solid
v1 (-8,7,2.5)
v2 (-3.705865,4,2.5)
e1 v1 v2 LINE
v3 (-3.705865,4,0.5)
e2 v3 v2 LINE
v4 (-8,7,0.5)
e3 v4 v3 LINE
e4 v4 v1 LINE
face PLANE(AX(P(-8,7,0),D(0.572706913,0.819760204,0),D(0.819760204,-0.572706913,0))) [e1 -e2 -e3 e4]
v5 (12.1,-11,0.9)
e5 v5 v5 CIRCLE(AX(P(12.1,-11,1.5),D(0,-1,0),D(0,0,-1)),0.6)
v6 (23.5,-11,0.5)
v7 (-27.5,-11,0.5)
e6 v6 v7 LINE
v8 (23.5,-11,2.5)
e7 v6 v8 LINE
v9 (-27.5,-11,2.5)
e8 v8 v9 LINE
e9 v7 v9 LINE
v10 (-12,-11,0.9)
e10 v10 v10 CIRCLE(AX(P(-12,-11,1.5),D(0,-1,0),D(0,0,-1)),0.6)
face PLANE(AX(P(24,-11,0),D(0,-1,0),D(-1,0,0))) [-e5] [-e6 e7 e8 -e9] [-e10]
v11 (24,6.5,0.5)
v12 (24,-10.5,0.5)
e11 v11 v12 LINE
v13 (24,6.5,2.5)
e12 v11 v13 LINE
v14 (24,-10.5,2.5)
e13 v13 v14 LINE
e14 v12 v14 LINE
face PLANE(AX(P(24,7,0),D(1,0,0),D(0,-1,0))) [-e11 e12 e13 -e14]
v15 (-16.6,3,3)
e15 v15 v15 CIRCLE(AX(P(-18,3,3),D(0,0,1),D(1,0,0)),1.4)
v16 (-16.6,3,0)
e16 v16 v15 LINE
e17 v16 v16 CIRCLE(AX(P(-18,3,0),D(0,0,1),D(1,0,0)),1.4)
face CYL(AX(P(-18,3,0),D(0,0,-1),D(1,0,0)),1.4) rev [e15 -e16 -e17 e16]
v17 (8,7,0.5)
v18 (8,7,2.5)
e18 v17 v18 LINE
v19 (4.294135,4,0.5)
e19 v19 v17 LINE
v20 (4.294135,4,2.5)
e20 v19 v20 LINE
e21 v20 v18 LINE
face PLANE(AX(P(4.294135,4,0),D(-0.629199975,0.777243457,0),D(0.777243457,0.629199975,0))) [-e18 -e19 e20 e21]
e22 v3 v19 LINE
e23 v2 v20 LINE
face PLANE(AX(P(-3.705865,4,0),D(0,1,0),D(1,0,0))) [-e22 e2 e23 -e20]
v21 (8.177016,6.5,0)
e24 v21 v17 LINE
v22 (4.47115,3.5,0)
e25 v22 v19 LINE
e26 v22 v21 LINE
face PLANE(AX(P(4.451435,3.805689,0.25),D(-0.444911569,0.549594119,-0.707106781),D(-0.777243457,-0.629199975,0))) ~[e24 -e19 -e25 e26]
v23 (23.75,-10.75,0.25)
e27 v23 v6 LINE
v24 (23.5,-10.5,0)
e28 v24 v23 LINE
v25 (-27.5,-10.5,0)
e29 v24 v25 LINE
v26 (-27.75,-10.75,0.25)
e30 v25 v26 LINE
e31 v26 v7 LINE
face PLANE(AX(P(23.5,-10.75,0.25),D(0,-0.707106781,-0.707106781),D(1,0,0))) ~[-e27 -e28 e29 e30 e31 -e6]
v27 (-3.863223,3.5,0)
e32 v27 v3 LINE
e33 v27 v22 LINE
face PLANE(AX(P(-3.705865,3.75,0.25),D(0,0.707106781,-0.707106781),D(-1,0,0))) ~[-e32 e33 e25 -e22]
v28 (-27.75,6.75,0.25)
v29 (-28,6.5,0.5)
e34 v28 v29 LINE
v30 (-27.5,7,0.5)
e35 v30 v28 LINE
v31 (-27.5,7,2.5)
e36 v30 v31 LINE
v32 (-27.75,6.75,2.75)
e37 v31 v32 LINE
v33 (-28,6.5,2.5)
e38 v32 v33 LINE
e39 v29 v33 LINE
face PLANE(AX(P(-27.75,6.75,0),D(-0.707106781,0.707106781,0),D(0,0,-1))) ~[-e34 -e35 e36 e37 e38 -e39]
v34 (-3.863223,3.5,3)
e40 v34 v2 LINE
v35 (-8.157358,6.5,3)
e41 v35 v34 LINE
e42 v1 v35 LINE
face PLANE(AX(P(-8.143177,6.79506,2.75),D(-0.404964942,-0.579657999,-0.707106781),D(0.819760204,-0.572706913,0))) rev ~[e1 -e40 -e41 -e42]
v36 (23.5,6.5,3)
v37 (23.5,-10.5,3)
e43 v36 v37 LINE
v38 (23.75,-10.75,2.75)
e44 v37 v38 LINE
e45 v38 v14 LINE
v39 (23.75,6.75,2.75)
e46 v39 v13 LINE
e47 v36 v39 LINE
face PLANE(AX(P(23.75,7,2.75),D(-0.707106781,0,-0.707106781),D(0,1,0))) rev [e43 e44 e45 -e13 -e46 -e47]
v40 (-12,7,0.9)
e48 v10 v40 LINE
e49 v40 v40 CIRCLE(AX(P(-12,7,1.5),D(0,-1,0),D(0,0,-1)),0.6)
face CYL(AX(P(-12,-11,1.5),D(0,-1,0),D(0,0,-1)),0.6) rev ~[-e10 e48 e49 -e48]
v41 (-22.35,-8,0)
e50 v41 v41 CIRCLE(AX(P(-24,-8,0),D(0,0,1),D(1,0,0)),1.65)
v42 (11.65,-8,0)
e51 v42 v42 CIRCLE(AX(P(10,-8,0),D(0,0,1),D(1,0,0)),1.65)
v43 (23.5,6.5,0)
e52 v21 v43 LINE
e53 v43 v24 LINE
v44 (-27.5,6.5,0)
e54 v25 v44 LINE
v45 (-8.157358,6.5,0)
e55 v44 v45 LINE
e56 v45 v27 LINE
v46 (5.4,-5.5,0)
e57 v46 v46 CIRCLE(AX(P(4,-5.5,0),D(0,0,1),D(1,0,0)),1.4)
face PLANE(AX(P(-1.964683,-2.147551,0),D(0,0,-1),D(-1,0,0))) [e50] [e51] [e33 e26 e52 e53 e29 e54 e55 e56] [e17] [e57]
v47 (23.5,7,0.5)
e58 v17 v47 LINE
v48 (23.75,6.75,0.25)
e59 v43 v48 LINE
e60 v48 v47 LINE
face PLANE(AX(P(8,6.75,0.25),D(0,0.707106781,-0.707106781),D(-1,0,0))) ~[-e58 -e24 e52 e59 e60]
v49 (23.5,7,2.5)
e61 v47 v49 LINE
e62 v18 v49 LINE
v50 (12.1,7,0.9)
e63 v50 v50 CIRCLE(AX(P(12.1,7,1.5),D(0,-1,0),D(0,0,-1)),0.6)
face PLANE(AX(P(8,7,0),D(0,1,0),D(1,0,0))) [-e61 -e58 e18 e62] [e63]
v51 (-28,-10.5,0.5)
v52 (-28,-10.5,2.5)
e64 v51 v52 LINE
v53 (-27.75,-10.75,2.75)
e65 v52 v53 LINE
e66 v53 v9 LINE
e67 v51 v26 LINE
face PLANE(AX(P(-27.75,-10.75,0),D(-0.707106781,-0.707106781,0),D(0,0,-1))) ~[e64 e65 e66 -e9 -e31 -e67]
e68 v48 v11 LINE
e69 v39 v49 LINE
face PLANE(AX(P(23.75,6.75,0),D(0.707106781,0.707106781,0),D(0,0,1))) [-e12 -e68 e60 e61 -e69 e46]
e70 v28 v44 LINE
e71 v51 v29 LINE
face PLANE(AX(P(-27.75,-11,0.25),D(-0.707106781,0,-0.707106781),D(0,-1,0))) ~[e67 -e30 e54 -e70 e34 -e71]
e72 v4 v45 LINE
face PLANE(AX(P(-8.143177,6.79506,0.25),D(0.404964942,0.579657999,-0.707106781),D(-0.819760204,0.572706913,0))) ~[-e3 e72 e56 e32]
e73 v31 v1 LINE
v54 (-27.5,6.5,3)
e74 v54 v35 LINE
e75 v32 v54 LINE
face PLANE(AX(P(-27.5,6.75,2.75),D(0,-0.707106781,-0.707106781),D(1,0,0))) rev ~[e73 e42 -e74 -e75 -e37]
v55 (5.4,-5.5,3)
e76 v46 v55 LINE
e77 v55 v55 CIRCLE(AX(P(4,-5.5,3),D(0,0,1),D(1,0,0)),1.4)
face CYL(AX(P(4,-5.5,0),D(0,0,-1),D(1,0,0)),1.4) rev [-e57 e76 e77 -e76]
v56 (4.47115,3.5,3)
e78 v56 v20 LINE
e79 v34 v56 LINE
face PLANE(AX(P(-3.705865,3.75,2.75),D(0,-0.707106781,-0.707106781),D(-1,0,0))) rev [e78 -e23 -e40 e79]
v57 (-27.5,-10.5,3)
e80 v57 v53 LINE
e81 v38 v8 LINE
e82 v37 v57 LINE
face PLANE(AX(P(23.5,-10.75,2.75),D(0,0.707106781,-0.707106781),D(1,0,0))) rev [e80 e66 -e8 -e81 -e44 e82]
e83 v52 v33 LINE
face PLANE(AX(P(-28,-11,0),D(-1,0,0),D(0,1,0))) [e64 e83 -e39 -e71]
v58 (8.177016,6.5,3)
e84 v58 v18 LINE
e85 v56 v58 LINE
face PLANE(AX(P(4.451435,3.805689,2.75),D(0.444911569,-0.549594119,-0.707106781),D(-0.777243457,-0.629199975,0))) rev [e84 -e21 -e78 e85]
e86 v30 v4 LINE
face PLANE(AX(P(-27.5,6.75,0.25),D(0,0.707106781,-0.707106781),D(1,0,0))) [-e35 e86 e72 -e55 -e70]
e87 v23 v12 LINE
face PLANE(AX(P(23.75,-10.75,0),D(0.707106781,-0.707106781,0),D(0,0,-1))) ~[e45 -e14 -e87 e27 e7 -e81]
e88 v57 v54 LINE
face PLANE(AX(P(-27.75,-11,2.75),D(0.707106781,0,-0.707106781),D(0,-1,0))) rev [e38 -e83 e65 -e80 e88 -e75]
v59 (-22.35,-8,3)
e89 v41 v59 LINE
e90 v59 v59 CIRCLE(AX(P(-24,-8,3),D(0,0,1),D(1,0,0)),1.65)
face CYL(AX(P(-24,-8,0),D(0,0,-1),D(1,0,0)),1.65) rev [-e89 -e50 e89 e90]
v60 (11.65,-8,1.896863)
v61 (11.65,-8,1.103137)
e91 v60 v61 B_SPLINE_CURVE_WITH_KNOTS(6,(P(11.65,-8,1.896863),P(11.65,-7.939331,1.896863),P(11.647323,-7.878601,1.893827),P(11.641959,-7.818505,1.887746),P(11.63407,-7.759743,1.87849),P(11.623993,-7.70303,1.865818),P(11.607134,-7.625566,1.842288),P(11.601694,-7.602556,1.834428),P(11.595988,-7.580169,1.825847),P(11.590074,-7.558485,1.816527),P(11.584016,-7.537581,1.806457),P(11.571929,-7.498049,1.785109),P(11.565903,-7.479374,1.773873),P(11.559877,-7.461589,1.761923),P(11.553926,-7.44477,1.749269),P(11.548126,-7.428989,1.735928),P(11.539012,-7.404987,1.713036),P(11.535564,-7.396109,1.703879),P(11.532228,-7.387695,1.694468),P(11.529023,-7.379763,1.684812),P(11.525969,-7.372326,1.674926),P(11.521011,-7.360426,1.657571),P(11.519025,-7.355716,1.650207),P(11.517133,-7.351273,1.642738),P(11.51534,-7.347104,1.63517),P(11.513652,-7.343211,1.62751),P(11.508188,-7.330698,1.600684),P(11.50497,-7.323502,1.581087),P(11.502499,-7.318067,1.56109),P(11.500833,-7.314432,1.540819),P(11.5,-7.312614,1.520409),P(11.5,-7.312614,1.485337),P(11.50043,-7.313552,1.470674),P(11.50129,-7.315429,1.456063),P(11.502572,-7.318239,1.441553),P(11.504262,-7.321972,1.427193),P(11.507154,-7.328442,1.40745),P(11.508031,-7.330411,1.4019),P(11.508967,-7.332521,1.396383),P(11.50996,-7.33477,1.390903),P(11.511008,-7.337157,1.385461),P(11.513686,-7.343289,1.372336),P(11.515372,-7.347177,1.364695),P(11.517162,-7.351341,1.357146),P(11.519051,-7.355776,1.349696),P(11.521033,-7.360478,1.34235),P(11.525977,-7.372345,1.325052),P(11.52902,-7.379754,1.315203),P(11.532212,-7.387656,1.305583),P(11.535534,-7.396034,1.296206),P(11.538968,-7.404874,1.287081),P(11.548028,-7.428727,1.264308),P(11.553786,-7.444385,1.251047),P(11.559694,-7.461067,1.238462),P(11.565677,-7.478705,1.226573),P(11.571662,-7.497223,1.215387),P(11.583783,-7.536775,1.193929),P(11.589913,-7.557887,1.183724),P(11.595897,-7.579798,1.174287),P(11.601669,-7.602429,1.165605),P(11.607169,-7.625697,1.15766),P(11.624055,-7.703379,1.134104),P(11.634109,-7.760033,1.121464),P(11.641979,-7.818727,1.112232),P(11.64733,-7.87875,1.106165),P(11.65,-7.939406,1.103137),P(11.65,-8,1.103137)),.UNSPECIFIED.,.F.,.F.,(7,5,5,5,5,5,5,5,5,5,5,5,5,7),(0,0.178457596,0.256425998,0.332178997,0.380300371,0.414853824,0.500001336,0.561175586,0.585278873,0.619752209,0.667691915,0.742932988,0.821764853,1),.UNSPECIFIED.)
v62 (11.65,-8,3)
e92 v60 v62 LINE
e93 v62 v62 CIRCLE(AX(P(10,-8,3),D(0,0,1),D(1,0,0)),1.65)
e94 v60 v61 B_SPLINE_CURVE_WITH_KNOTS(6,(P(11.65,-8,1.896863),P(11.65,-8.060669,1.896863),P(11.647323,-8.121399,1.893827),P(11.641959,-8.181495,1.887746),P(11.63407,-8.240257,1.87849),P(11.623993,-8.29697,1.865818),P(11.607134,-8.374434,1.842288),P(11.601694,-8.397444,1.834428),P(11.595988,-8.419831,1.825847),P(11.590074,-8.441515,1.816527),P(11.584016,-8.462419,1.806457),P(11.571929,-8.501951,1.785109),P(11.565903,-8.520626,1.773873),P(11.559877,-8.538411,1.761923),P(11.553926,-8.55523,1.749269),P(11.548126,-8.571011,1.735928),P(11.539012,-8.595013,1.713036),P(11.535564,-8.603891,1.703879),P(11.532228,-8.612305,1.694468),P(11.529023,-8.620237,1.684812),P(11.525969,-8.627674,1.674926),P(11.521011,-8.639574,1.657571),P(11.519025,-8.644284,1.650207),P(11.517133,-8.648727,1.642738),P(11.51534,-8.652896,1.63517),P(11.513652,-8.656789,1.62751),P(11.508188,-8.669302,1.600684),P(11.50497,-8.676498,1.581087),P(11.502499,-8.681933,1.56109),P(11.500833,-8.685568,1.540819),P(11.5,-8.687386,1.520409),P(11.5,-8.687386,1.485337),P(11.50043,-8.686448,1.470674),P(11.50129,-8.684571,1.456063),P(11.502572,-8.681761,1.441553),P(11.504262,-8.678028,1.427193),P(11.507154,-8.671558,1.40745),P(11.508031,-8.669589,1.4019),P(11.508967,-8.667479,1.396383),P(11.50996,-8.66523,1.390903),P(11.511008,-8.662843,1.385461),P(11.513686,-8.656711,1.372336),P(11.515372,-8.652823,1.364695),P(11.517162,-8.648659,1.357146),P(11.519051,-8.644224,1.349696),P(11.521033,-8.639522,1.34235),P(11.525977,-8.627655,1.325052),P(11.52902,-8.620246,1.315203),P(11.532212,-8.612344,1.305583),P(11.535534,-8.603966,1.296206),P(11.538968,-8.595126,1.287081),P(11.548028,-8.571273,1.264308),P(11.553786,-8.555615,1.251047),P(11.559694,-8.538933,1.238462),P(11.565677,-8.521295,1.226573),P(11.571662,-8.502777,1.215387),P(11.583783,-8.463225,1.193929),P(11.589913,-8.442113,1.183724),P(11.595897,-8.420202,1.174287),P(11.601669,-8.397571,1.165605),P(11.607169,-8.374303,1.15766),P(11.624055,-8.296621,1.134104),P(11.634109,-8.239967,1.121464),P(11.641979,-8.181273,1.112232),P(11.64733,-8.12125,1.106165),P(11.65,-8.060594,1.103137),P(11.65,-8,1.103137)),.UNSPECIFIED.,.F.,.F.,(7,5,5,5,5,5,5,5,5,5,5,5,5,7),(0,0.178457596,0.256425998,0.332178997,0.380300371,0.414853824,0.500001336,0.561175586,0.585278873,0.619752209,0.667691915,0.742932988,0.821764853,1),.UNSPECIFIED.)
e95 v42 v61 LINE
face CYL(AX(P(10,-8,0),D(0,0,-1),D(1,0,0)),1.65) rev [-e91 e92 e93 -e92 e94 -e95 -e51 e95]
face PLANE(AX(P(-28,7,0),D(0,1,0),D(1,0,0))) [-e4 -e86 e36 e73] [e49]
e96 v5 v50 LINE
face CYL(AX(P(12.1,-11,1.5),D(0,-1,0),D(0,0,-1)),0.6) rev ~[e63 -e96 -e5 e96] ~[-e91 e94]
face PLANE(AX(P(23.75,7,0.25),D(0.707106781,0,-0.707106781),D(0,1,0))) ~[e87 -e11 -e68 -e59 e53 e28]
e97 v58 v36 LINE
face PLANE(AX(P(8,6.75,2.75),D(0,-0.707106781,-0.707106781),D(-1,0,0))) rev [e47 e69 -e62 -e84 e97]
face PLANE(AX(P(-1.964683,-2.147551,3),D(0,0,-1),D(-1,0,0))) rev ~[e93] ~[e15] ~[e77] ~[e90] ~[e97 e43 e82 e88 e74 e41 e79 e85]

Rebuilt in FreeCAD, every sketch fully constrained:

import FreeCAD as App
import Part
import Sketcher
from FreeCAD import Vector
Q = App.Units.Quantity


def edges_at(feature, points):
    """Names of the edges that pass closest to the given points."""
    edges = feature.Shape.Edges
    near = lambda p: min(range(len(edges)), key=lambda i: edges[i].distToShape(Part.Vertex(*p))[0])
    return sorted({f"Edge{near(p) + 1}" for p in points})


def add_polygon(sketch, points):
    """Adds a closed chain of lines whose ends are joined by coincident constraints."""
    first, n = sketch.GeometryCount, len(points)
    for a, b in zip(points, points[1:] + points[:1]):
        sketch.addGeometry(Part.LineSegment(App.Vector(*a, 0), App.Vector(*b, 0)), False)
    for i in range(n):
        sketch.addConstraint(Sketcher.Constraint("Coincident", first + i, 2, first + (i + 1) % n, 1))

doc = App.newDocument("Part")
body = doc.addObject("PartDesign::Body", "Body")

# Sketch on XY plane
sketch1 = body.newObject("Sketcher::SketchObject", "Sketch")
sketch1.AttachmentSupport = (doc.getObject("XY_Plane"), [""])
sketch1.MapMode = "FlatFace"
add_polygon(sketch1, [(-3.705865, 4), (-8, 7), (-28, 7), (-28, -11), (24, -11), (24, 7), (8, 7), (4.294135, 4)])  # lines 0-7
sketch1.addGeometry(Part.Circle(Vector(10, -8, 0), Vector(0, 0, 1), 1.65), False)  # 8
sketch1.addGeometry(Part.Circle(Vector(4, -5.5, 0), Vector(0, 0, 1), 1.4), False)  # 9
sketch1.addGeometry(Part.Circle(Vector(-24, -8, 0), Vector(0, 0, 1), 1.65), False)  # 10
sketch1.addGeometry(Part.Circle(Vector(-18, 3, 0), Vector(0, 0, 1), 1.4), False)  # 11
sketch1.addConstraint([
    Sketcher.Constraint("Horizontal", 1),
    Sketcher.Constraint("Vertical", 2),
    Sketcher.Constraint("Horizontal", 3),
    Sketcher.Constraint("Vertical", 4),
    Sketcher.Constraint("Horizontal", 5),
    Sketcher.Constraint("Horizontal", 7),
    Sketcher.Constraint("Equal", 8, 10),
    Sketcher.Constraint("Equal", 9, 11),
    Sketcher.Constraint("Symmetric", 0, 2, 5, 2, -2),
    Sketcher.Constraint("Horizontal", 8, 3, 10, 3),
    Sketcher.Constraint("Diameter", 8, Q("3.3 mm")),
    Sketcher.Constraint("Diameter", 9, Q("2.8 mm")),
    Sketcher.Constraint("DistanceX", 1, 2, 1, 1, Q("20 mm")),
    Sketcher.Constraint("DistanceX", 3, 1, 3, 2, Q("52 mm")),
    Sketcher.Constraint("DistanceX", 5, 2, 5, 1, Q("16 mm")),
    Sketcher.Constraint("DistanceX", 7, 2, 7, 1, Q("8 mm")),
    Sketcher.Constraint("DistanceY", 2, 2, 2, 1, Q("18 mm")),
    Sketcher.Constraint("DistanceX", -1, 1, 8, 3, Q("10 mm")),
    Sketcher.Constraint("DistanceY", 8, 3, -1, 1, Q("8 mm")),
    Sketcher.Constraint("DistanceX", -1, 1, 9, 3, Q("4 mm")),
    Sketcher.Constraint("DistanceX", 10, 3, -1, 1, Q("24 mm")),
    Sketcher.Constraint("DistanceX", 11, 3, -1, 1, Q("18 mm")),
    Sketcher.Constraint("DistanceY", -1, 1, 11, 3, Q("3 mm")),
    Sketcher.Constraint("DistanceY", -1, 1, 0, 2, Q("7 mm")),
    Sketcher.Constraint("DistanceY", -1, 1, 6, 2, Q("4 mm")),
    Sketcher.Constraint("DistanceY", 9, 3, -1, 1, Q("5.5 mm")),
    Sketcher.Constraint("Distance", 0, Q("5.238281 mm")),
])
pad1 = body.newObject("PartDesign::Pad", "Pad")
pad1.Profile = sketch1
pad1.Length = 3

# Sketch on XZ plane
sketch2 = body.newObject("Sketcher::SketchObject", "Sketch001")
sketch2.AttachmentSupport = (doc.getObject("XZ_Plane"), [""])
sketch2.MapMode = "FlatFace"
sketch2.AttachmentOffset = App.Placement(Vector(0, 0, 11), App.Rotation())
sketch2.addGeometry([
    Part.Circle(Vector(12.1, 1.5, 0), Vector(0, 0, 1), 0.6),
    Part.Circle(Vector(-12, 1.5, 0), Vector(0, 0, 1), 0.6),
], False)
sketch2.addConstraint([
    Sketcher.Constraint("Equal", 0, 1),
    Sketcher.Constraint("Horizontal", 0, 3, 1, 3),
    Sketcher.Constraint("Diameter", 0, Q("1.2 mm")),
    Sketcher.Constraint("DistanceX", 1, 3, -1, 1, Q("12 mm")),
    Sketcher.Constraint("DistanceX", -1, 1, 0, 3, Q("12.1 mm")),
    Sketcher.Constraint("DistanceY", -1, 1, 0, 3, Q("1.5 mm")),
])
pocket1 = body.newObject("PartDesign::Pocket", "Pocket")
pocket1.Profile = sketch2
pocket1.Type = "ThroughAll"
doc.recompute()

chamfer = body.newObject("PartDesign::Chamfer", "Chamfer")
chamfer.Base = (pocket1, edges_at(pocket1, [
    (24, -2, 0),
    (24, -11, 1.5),
    (-28, -11, 1.5),
    (-28, 7, 1.5),
    (24, 7, 1.5),
    (-28, -2, 3),
    (24, -2, 3),
    (-28, -2, 0),
]))
chamfer.Size = 0.5
doc.recompute()

chamfer2 = body.newObject("PartDesign::Chamfer", "Chamfer001")
chamfer2.Base = (chamfer, edges_at(chamfer, [
    (0.294, 4, 0),
    (6.147, 5.5, 0),
    (6.147, 5.5, 3),
    (0.294, 4, 3),
    (-5.853, 5.5, 3),
    (-17.75, 7, 3),
    (15.75, 7, 3),
    (-2, -11, 3),
    (-2, -11, 0),
    (15.75, 7, 0),
    (-17.75, 7, 0),
    (-5.853, 5.5, 0),
]))
chamfer2.Size = 0.5

doc.recompute()
